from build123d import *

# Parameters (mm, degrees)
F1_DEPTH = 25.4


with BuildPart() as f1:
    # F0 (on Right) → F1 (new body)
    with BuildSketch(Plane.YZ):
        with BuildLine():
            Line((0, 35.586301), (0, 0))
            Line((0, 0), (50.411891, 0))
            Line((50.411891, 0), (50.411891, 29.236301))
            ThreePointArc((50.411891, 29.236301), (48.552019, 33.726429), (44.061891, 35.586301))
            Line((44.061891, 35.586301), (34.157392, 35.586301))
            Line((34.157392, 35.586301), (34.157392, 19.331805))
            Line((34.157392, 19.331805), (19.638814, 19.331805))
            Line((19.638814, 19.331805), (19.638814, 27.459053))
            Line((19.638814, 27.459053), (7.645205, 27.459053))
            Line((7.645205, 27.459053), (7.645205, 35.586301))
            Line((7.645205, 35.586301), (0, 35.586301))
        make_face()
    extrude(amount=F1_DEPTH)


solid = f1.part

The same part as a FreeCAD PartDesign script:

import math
import FreeCAD as App
import Part
import Sketcher
Q = App.Units.Quantity

doc = App.newDocument("Part")
body = doc.addObject("PartDesign::Body", "Body")

# Sketch on YZ plane
sketch1 = doc.addObject("Sketcher::SketchObject", "Sketch")
body.addObject(sketch1)
sketch1.AttachmentSupport = (doc.YZ_Plane, [""])
sketch1.MapMode = "FlatFace"
sketch1.addGeometry(Part.LineSegment(App.Vector(0, 36, 0), App.Vector(0, 0, 0)), False)
sketch1.addGeometry(Part.LineSegment(App.Vector(0, 0, 0), App.Vector(50, 0, 0)), False)
sketch1.addGeometry(Part.LineSegment(App.Vector(50, 0, 0), App.Vector(50, 29, 0)), False)
sketch1.addGeometry(Part.ArcOfCircle(Part.Circle(App.Vector(44, 29, 0), App.Vector(0, 0, 1), 6), math.radians(0), math.radians(90)), False)
sketch1.addGeometry(Part.LineSegment(App.Vector(44, 36, 0), App.Vector(34, 36, 0)), False)
sketch1.addGeometry(Part.LineSegment(App.Vector(34, 36, 0), App.Vector(34, 19, 0)), False)
sketch1.addGeometry(Part.LineSegment(App.Vector(34, 19, 0), App.Vector(20, 19, 0)), False)
sketch1.addGeometry(Part.LineSegment(App.Vector(20, 19, 0), App.Vector(20, 27, 0)), False)
sketch1.addGeometry(Part.LineSegment(App.Vector(20, 27, 0), App.Vector(8, 27, 0)), False)
sketch1.addGeometry(Part.LineSegment(App.Vector(8, 27, 0), App.Vector(8, 36, 0)), False)
sketch1.addGeometry(Part.LineSegment(App.Vector(8, 36, 0), App.Vector(0, 36, 0)), False)
sketch1.addConstraint(Sketcher.Constraint("Coincident", 0, 2, 1, 1))
sketch1.addConstraint(Sketcher.Constraint("Coincident", 1, 2, 2, 1))
sketch1.addConstraint(Sketcher.Constraint("Tangent", 2, 2, 3, 1))
sketch1.addConstraint(Sketcher.Constraint("Tangent", 3, 2, 4, 1))
sketch1.addConstraint(Sketcher.Constraint("Coincident", 4, 2, 5, 1))
sketch1.addConstraint(Sketcher.Constraint("Coincident", 5, 2, 6, 1))
sketch1.addConstraint(Sketcher.Constraint("Coincident", 6, 2, 7, 1))
sketch1.addConstraint(Sketcher.Constraint("Coincident", 7, 2, 8, 1))
sketch1.addConstraint(Sketcher.Constraint("Coincident", 8, 2, 9, 1))
sketch1.addConstraint(Sketcher.Constraint("Coincident", 9, 2, 10, 1))
sketch1.addConstraint(Sketcher.Constraint("Coincident", 10, 2, 0, 1))
sketch1.addConstraint(Sketcher.Constraint("Vertical", 0))
sketch1.addConstraint(Sketcher.Constraint("Horizontal", 1))
sketch1.addConstraint(Sketcher.Constraint("Vertical", 2))
sketch1.addConstraint(Sketcher.Constraint("Horizontal", 4))
sketch1.addConstraint(Sketcher.Constraint("Vertical", 5))
sketch1.addConstraint(Sketcher.Constraint("Horizontal", 6))
sketch1.addConstraint(Sketcher.Constraint("Vertical", 7))
sketch1.addConstraint(Sketcher.Constraint("Horizontal", 8))
sketch1.addConstraint(Sketcher.Constraint("Vertical", 9))
sketch1.addConstraint(Sketcher.Constraint("Horizontal", 10))
sketch1.addConstraint(Sketcher.Constraint("Coincident", 0, 2, -1, 1))
sketch1.addConstraint(Sketcher.Constraint("Horizontal", 4, 2, 9, 2))
sketch1.addConstraint(Sketcher.Constraint("Equal", 7, 9))
sketch1.addConstraint(Sketcher.Constraint("Radius", 3, Q("0.25 in")))
sketch1.addConstraint(Sketcher.Constraint("DistanceX", 4, 2, 4, 1, Q("9.904499 mm")))
sketch1.addConstraint(Sketcher.Constraint("DistanceY", 0, 2, 0, 1, Q("35.586301 mm")))
sketch1.addConstraint(Sketcher.Constraint("DistanceX", 1, 1, 1, 2, Q("50.411891 mm")))
sketch1.addConstraint(Sketcher.Constraint("DistanceX", 6, 2, 6, 1, Q("14.518578 mm")))
sketch1.addConstraint(Sketcher.Constraint("DistanceX", 8, 2, 8, 1, Q("11.993609 mm")))
sketch1.addConstraint(Sketcher.Constraint("DistanceY", 7, 1, 7, 2, Q("8.127248 mm")))
pad1 = doc.addObject("PartDesign::Pad", "Pad")
body.addObject(pad1)
pad1.Profile = sketch1
pad1.Length = Q("1 in")

doc.recompute()
